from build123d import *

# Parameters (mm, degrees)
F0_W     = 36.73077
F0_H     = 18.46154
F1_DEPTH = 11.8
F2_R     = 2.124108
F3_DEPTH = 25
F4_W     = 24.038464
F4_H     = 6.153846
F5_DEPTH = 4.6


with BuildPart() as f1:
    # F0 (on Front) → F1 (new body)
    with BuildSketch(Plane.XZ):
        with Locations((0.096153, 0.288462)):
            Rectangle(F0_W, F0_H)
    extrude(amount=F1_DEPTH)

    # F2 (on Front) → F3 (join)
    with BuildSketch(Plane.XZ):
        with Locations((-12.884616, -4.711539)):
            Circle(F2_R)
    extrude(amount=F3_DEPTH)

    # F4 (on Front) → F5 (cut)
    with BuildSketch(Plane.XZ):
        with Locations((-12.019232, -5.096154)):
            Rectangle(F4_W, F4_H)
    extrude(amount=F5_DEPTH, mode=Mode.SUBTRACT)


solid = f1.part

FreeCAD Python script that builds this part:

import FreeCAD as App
import Part
import Sketcher
from FreeCAD import Vector


def add_polygon(sketch, points):
    """Adds a closed chain of lines whose ends are joined by coincident constraints."""
    first, n = sketch.GeometryCount, len(points)
    for a, b in zip(points, points[1:] + points[:1]):
        sketch.addGeometry(Part.LineSegment(App.Vector(*a, 0), App.Vector(*b, 0)), False)
    for i in range(n):
        sketch.addConstraint(Sketcher.Constraint("Coincident", first + i, 2, first + (i + 1) % n, 1))

doc = App.newDocument("Part")
params = doc.addObject("Spreadsheet::Sheet", "Params")
for row, (alias, value) in enumerate([
    ("pad1_length", "11.8 mm"),
    ("pad2_length", "25 mm"),
    ("pocket1_length", "4.6 mm"),
], start=1):
    params.set(f"A{row}", alias)
    params.set(f"B{row}", "=" + value)
    params.setAlias(f"B{row}", alias)

body = doc.addObject("PartDesign::Body", "Body")

# Sketch on XZ plane
sketch1 = body.newObject("Sketcher::SketchObject", "Sketch")
sketch1.AttachmentSupport = (doc.getObject("XZ_Plane"), [""])
sketch1.MapMode = "FlatFace"
add_polygon(sketch1, [(-18, 10), (-18, -9), (18, -9), (18, 10)])  # lines 0-3
sketch1.addConstraint(Sketcher.Constraint("Vertical", 0))
sketch1.addConstraint(Sketcher.Constraint("Horizontal", 1))
sketch1.addConstraint(Sketcher.Constraint("Vertical", 2))
sketch1.addConstraint(Sketcher.Constraint("Horizontal", 3))
sketch1.addConstraint(Sketcher.Constraint("DistanceX", 1, 1, 1, 2, 36.73077))
sketch1.addConstraint(Sketcher.Constraint("DistanceY", 0, 2, 0, 1, 18.46154))
sketch1.addConstraint(Sketcher.Constraint("DistanceX", 0, 2, -1, 1, 18.269232))
sketch1.addConstraint(Sketcher.Constraint("DistanceY", 0, 2, -1, 1, 8.942308))
pad1 = body.newObject("PartDesign::Pad", "Pad")
pad1.Profile = sketch1
pad1.setExpression("Length", "Params.pad1_length")

# Sketch on XZ plane
sketch2 = body.newObject("Sketcher::SketchObject", "Sketch001")
sketch2.AttachmentSupport = (doc.getObject("XZ_Plane"), [""])
sketch2.MapMode = "FlatFace"
sketch2.addGeometry(Part.Circle(Vector(-12.9, -4.7, 0), Vector(0, 0, 1), 2.1), False)
sketch2.addConstraint(Sketcher.Constraint("Diameter", 0, 4.248216))
sketch2.addConstraint(Sketcher.Constraint("DistanceY", 0, 3, -1, 1, 4.711539))
sketch2.addConstraint(Sketcher.Constraint("DistanceX", 0, 3, -1, 1, 12.884616))
pad2 = body.newObject("PartDesign::Pad", "Pad001")
pad2.Profile = sketch2
pad2.setExpression("Length", "Params.pad2_length")

# Sketch on XZ plane
sketch3 = body.newObject("Sketcher::SketchObject", "Sketch002")
sketch3.AttachmentSupport = (doc.getObject("XZ_Plane"), [""])
sketch3.MapMode = "FlatFace"
add_polygon(sketch3, [(-24, -2), (-24, -8), (0, -8), (0, -2)])  # lines 0-3
sketch3.addConstraint(Sketcher.Constraint("Vertical", 0))
sketch3.addConstraint(Sketcher.Constraint("Horizontal", 1))
sketch3.addConstraint(Sketcher.Constraint("Vertical", 2))
sketch3.addConstraint(Sketcher.Constraint("Horizontal", 3))
sketch3.addConstraint(Sketcher.Constraint("PointOnObject", 1, 2, -2))
sketch3.addConstraint(Sketcher.Constraint("DistanceX", 1, 1, 1, 2, 24.038464))
sketch3.addConstraint(Sketcher.Constraint("DistanceY", 0, 2, 0, 1, 6.153846))
sketch3.addConstraint(Sketcher.Constraint("DistanceY", 2, 2, -1, 1, 2.019231))
pocket1 = body.newObject("PartDesign::Pocket", "Pocket")
pocket1.Profile = sketch3
pocket1.setExpression("Length", "Params.pocket1_length")
pocket1.Reversed = True

doc.recompute()
